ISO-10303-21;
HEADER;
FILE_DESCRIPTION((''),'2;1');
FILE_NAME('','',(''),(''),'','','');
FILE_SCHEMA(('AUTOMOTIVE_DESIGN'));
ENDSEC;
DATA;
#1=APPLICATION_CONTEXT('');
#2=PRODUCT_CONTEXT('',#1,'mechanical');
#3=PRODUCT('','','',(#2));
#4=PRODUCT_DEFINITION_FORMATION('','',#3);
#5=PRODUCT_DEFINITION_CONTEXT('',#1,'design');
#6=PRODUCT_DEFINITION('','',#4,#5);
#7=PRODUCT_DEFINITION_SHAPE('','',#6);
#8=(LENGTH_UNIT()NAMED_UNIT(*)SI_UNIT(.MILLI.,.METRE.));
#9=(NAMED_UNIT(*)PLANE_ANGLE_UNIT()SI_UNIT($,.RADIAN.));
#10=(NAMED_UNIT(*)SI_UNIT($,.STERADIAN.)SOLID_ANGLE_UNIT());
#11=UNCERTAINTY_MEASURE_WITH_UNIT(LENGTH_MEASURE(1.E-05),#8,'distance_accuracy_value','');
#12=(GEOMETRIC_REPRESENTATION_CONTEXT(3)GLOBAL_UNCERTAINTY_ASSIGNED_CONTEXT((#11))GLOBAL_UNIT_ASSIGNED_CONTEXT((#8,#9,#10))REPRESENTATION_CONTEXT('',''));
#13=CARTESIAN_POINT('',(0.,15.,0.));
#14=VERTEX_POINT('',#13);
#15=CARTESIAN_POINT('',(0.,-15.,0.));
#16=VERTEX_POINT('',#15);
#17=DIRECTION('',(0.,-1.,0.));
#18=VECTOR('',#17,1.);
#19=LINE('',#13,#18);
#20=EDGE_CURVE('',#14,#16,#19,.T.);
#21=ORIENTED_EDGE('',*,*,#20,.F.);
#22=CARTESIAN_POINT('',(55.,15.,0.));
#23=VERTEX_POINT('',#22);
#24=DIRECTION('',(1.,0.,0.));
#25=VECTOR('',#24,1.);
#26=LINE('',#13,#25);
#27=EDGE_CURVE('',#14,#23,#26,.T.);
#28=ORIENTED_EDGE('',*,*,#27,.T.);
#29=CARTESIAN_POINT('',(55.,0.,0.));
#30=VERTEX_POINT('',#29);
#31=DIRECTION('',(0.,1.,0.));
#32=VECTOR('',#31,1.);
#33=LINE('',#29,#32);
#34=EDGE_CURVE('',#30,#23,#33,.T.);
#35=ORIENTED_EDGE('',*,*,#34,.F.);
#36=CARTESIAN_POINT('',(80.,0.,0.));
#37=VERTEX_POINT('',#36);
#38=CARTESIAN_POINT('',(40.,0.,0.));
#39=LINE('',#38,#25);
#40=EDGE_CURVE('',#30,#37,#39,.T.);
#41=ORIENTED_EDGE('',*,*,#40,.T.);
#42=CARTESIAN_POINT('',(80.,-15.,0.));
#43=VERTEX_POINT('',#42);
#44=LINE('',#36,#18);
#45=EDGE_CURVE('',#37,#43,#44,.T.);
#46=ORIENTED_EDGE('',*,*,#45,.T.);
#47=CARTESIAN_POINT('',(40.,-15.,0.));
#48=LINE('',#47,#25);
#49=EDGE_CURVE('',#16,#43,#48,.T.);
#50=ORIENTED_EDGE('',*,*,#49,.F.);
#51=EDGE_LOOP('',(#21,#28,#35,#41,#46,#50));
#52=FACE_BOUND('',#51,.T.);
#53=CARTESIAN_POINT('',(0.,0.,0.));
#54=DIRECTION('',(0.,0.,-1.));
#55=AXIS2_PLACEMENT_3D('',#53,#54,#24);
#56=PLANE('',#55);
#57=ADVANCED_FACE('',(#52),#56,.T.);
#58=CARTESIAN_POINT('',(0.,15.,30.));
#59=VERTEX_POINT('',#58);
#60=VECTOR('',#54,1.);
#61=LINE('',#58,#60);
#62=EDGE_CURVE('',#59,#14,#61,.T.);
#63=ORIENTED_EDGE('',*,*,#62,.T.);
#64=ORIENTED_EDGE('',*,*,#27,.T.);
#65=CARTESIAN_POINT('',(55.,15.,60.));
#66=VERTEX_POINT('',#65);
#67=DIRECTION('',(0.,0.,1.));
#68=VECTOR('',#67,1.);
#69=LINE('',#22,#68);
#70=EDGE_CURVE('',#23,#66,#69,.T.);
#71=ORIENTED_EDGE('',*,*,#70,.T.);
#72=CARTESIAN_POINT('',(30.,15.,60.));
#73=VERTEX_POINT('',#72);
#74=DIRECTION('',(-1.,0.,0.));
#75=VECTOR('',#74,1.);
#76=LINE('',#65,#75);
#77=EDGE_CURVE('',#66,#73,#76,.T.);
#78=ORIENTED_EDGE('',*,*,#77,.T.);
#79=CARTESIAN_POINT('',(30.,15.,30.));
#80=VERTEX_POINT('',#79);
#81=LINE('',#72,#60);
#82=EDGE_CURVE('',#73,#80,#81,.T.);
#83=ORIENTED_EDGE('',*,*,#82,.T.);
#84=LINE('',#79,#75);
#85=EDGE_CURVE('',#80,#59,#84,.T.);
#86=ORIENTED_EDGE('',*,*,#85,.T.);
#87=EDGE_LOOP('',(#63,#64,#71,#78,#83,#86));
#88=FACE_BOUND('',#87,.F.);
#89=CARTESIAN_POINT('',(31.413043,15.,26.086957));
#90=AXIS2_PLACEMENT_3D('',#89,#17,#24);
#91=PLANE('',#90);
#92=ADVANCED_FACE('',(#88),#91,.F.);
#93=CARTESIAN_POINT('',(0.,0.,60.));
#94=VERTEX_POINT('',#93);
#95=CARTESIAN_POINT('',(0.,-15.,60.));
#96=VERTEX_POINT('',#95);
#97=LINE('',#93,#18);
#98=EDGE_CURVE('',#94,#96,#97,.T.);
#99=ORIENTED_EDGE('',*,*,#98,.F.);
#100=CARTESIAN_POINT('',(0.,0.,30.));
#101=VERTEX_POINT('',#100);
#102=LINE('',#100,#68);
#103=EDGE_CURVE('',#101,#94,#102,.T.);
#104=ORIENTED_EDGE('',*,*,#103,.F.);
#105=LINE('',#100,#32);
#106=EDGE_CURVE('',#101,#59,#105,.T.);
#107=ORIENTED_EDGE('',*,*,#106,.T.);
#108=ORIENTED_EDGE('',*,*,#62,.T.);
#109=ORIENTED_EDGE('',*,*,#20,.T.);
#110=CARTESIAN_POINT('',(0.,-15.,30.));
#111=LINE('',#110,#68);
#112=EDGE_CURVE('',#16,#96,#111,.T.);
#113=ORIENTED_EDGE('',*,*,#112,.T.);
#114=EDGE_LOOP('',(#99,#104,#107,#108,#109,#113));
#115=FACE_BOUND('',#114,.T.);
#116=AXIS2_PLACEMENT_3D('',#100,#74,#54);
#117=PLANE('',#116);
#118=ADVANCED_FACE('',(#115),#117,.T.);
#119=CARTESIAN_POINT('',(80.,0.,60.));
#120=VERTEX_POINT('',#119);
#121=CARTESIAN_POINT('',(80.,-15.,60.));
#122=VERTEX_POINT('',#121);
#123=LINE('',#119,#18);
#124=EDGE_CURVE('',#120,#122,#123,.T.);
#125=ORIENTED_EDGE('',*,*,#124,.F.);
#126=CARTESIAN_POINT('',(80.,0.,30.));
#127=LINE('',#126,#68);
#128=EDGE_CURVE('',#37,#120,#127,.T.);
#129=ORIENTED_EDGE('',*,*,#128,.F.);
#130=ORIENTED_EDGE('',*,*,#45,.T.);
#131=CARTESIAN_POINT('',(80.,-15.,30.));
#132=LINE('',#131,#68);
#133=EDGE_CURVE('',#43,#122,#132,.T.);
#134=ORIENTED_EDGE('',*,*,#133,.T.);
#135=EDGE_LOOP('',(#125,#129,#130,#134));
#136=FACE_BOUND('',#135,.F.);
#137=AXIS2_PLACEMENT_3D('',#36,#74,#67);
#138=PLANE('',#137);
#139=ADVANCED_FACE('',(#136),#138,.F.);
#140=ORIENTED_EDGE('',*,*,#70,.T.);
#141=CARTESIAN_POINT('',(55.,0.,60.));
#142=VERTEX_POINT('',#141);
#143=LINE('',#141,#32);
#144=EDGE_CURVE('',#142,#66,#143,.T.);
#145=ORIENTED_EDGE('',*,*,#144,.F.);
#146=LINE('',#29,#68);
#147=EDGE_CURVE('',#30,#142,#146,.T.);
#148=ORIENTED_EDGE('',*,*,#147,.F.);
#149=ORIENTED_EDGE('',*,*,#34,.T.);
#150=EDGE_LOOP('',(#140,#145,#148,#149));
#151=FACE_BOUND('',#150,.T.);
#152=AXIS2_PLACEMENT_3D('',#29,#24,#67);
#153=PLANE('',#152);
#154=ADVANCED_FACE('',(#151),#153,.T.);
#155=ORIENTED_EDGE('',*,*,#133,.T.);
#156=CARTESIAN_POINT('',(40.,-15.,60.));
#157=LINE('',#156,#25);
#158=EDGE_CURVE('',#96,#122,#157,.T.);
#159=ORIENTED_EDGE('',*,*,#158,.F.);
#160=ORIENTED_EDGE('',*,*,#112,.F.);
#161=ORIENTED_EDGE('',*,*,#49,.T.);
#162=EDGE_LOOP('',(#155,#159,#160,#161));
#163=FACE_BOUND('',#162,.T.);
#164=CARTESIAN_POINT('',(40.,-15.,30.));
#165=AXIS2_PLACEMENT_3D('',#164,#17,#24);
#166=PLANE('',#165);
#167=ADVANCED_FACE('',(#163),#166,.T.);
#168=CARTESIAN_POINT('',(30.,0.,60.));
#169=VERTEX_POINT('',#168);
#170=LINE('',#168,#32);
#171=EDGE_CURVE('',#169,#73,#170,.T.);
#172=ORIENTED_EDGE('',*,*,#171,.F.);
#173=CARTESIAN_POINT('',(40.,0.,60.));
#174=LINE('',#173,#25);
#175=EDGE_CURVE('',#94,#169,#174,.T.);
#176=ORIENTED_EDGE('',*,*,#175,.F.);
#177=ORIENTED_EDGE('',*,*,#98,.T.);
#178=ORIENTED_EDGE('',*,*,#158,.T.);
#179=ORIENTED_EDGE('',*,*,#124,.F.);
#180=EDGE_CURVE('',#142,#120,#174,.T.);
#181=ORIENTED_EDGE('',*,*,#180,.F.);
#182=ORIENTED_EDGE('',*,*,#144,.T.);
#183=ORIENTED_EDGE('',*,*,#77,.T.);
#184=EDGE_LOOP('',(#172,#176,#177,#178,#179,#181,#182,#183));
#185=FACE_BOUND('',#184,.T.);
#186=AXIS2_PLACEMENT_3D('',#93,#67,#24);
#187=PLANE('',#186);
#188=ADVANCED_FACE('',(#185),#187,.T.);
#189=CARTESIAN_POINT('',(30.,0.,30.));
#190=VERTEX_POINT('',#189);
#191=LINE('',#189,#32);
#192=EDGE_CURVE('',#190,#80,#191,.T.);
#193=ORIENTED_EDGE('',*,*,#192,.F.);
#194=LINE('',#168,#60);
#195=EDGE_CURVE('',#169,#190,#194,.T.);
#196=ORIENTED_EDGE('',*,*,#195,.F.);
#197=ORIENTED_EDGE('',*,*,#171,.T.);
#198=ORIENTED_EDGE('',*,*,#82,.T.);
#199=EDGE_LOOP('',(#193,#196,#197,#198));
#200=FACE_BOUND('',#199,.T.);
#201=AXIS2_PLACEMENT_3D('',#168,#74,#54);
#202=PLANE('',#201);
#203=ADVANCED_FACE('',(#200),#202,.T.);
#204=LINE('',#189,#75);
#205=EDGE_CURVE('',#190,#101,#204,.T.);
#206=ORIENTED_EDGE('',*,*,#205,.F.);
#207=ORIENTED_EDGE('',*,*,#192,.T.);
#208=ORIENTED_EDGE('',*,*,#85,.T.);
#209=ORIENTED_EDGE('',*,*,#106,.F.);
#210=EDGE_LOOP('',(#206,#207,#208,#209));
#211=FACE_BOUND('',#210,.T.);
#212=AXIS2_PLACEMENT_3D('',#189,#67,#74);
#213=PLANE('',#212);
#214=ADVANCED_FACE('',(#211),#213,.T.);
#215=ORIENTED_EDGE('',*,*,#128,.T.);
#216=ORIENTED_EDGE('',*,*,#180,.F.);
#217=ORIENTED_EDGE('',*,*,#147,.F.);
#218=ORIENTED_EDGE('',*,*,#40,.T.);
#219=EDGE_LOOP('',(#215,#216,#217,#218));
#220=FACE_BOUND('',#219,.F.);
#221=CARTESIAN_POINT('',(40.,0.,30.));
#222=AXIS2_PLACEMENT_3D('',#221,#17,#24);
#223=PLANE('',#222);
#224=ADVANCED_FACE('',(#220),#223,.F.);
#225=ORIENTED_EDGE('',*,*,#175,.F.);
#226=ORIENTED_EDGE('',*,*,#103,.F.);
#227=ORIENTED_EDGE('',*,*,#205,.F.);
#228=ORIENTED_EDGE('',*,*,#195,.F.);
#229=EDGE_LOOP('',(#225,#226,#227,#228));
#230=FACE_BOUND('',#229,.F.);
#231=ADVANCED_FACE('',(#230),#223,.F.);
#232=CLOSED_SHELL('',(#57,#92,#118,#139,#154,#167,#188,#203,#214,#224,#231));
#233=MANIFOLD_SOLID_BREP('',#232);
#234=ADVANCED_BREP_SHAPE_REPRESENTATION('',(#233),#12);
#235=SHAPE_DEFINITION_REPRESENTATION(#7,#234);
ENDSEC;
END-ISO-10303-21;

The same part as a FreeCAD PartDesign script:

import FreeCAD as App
import Part
import Sketcher
from FreeCAD import Vector


def add_polygon(sketch, points):
    """Adds a closed chain of lines whose ends are joined by coincident constraints."""
    first, n = sketch.GeometryCount, len(points)
    for a, b in zip(points, points[1:] + points[:1]):
        sketch.addGeometry(Part.LineSegment(App.Vector(*a, 0), App.Vector(*b, 0)), False)
    for i in range(n):
        sketch.addConstraint(Sketcher.Constraint("Coincident", first + i, 2, first + (i + 1) % n, 1))

doc = App.newDocument("Part")
body = doc.addObject("PartDesign::Body", "Body")

sketch1 = body.newObject("Sketcher::SketchObject", "Sketch")
sketch1.AttachmentSupport = (doc.getObject("XZ_Plane"), [""])
sketch1.MapMode = "FlatFace"
add_polygon(sketch1, [(0, 60), (0, 0), (80, 0), (80, 60)])
sketch1.addConstraint([
    Sketcher.Constraint("Vertical", 0),
    Sketcher.Constraint("Horizontal", 1),
    Sketcher.Constraint("Vertical", 2),
    Sketcher.Constraint("Horizontal", 3),
    Sketcher.Constraint("Coincident", 0, 2, -1, 1),
    Sketcher.Constraint("DistanceX", 1, 1, 1, 2, 80.0),
    Sketcher.Constraint("DistanceY", 0, 2, 0, 1, 60.0),
])
pad1 = body.newObject("PartDesign::Pad", "Pad")
pad1.Profile = sketch1
pad1.Length = 15

sketch2 = body.newObject("Sketcher::SketchObject", "Sketch001")
sketch2.AttachmentSupport = (doc.getObject("XZ_Plane"), [""])
sketch2.MapMode = "FlatFace"
add_polygon(sketch2, [(0, 30), (0, 0), (55, 0), (55, 60), (30, 60), (30, 30)])
sketch2.addConstraint([
    Sketcher.Constraint("Vertical", 0),
    Sketcher.Constraint("Horizontal", 1),
    Sketcher.Constraint("Vertical", 2),
    Sketcher.Constraint("Horizontal", 3),
    Sketcher.Constraint("Vertical", 4),
    Sketcher.Constraint("Horizontal", 5),
    Sketcher.Constraint("Coincident", 0, 2, -1, 1),
    Sketcher.Constraint("Equal", 5, 0),
    Sketcher.Constraint("Equal", 0, 4),
    Sketcher.Constraint("DistanceX", 1, 1, 1, 2, 55.0),
    Sketcher.Constraint("DistanceX", 3, 2, 3, 1, 25.0),
])
pad2 = body.newObject("PartDesign::Pad", "Pad001")
pad2.Profile = sketch2
pad2.Length = 15
pad2.Reversed = True

doc.recompute()
